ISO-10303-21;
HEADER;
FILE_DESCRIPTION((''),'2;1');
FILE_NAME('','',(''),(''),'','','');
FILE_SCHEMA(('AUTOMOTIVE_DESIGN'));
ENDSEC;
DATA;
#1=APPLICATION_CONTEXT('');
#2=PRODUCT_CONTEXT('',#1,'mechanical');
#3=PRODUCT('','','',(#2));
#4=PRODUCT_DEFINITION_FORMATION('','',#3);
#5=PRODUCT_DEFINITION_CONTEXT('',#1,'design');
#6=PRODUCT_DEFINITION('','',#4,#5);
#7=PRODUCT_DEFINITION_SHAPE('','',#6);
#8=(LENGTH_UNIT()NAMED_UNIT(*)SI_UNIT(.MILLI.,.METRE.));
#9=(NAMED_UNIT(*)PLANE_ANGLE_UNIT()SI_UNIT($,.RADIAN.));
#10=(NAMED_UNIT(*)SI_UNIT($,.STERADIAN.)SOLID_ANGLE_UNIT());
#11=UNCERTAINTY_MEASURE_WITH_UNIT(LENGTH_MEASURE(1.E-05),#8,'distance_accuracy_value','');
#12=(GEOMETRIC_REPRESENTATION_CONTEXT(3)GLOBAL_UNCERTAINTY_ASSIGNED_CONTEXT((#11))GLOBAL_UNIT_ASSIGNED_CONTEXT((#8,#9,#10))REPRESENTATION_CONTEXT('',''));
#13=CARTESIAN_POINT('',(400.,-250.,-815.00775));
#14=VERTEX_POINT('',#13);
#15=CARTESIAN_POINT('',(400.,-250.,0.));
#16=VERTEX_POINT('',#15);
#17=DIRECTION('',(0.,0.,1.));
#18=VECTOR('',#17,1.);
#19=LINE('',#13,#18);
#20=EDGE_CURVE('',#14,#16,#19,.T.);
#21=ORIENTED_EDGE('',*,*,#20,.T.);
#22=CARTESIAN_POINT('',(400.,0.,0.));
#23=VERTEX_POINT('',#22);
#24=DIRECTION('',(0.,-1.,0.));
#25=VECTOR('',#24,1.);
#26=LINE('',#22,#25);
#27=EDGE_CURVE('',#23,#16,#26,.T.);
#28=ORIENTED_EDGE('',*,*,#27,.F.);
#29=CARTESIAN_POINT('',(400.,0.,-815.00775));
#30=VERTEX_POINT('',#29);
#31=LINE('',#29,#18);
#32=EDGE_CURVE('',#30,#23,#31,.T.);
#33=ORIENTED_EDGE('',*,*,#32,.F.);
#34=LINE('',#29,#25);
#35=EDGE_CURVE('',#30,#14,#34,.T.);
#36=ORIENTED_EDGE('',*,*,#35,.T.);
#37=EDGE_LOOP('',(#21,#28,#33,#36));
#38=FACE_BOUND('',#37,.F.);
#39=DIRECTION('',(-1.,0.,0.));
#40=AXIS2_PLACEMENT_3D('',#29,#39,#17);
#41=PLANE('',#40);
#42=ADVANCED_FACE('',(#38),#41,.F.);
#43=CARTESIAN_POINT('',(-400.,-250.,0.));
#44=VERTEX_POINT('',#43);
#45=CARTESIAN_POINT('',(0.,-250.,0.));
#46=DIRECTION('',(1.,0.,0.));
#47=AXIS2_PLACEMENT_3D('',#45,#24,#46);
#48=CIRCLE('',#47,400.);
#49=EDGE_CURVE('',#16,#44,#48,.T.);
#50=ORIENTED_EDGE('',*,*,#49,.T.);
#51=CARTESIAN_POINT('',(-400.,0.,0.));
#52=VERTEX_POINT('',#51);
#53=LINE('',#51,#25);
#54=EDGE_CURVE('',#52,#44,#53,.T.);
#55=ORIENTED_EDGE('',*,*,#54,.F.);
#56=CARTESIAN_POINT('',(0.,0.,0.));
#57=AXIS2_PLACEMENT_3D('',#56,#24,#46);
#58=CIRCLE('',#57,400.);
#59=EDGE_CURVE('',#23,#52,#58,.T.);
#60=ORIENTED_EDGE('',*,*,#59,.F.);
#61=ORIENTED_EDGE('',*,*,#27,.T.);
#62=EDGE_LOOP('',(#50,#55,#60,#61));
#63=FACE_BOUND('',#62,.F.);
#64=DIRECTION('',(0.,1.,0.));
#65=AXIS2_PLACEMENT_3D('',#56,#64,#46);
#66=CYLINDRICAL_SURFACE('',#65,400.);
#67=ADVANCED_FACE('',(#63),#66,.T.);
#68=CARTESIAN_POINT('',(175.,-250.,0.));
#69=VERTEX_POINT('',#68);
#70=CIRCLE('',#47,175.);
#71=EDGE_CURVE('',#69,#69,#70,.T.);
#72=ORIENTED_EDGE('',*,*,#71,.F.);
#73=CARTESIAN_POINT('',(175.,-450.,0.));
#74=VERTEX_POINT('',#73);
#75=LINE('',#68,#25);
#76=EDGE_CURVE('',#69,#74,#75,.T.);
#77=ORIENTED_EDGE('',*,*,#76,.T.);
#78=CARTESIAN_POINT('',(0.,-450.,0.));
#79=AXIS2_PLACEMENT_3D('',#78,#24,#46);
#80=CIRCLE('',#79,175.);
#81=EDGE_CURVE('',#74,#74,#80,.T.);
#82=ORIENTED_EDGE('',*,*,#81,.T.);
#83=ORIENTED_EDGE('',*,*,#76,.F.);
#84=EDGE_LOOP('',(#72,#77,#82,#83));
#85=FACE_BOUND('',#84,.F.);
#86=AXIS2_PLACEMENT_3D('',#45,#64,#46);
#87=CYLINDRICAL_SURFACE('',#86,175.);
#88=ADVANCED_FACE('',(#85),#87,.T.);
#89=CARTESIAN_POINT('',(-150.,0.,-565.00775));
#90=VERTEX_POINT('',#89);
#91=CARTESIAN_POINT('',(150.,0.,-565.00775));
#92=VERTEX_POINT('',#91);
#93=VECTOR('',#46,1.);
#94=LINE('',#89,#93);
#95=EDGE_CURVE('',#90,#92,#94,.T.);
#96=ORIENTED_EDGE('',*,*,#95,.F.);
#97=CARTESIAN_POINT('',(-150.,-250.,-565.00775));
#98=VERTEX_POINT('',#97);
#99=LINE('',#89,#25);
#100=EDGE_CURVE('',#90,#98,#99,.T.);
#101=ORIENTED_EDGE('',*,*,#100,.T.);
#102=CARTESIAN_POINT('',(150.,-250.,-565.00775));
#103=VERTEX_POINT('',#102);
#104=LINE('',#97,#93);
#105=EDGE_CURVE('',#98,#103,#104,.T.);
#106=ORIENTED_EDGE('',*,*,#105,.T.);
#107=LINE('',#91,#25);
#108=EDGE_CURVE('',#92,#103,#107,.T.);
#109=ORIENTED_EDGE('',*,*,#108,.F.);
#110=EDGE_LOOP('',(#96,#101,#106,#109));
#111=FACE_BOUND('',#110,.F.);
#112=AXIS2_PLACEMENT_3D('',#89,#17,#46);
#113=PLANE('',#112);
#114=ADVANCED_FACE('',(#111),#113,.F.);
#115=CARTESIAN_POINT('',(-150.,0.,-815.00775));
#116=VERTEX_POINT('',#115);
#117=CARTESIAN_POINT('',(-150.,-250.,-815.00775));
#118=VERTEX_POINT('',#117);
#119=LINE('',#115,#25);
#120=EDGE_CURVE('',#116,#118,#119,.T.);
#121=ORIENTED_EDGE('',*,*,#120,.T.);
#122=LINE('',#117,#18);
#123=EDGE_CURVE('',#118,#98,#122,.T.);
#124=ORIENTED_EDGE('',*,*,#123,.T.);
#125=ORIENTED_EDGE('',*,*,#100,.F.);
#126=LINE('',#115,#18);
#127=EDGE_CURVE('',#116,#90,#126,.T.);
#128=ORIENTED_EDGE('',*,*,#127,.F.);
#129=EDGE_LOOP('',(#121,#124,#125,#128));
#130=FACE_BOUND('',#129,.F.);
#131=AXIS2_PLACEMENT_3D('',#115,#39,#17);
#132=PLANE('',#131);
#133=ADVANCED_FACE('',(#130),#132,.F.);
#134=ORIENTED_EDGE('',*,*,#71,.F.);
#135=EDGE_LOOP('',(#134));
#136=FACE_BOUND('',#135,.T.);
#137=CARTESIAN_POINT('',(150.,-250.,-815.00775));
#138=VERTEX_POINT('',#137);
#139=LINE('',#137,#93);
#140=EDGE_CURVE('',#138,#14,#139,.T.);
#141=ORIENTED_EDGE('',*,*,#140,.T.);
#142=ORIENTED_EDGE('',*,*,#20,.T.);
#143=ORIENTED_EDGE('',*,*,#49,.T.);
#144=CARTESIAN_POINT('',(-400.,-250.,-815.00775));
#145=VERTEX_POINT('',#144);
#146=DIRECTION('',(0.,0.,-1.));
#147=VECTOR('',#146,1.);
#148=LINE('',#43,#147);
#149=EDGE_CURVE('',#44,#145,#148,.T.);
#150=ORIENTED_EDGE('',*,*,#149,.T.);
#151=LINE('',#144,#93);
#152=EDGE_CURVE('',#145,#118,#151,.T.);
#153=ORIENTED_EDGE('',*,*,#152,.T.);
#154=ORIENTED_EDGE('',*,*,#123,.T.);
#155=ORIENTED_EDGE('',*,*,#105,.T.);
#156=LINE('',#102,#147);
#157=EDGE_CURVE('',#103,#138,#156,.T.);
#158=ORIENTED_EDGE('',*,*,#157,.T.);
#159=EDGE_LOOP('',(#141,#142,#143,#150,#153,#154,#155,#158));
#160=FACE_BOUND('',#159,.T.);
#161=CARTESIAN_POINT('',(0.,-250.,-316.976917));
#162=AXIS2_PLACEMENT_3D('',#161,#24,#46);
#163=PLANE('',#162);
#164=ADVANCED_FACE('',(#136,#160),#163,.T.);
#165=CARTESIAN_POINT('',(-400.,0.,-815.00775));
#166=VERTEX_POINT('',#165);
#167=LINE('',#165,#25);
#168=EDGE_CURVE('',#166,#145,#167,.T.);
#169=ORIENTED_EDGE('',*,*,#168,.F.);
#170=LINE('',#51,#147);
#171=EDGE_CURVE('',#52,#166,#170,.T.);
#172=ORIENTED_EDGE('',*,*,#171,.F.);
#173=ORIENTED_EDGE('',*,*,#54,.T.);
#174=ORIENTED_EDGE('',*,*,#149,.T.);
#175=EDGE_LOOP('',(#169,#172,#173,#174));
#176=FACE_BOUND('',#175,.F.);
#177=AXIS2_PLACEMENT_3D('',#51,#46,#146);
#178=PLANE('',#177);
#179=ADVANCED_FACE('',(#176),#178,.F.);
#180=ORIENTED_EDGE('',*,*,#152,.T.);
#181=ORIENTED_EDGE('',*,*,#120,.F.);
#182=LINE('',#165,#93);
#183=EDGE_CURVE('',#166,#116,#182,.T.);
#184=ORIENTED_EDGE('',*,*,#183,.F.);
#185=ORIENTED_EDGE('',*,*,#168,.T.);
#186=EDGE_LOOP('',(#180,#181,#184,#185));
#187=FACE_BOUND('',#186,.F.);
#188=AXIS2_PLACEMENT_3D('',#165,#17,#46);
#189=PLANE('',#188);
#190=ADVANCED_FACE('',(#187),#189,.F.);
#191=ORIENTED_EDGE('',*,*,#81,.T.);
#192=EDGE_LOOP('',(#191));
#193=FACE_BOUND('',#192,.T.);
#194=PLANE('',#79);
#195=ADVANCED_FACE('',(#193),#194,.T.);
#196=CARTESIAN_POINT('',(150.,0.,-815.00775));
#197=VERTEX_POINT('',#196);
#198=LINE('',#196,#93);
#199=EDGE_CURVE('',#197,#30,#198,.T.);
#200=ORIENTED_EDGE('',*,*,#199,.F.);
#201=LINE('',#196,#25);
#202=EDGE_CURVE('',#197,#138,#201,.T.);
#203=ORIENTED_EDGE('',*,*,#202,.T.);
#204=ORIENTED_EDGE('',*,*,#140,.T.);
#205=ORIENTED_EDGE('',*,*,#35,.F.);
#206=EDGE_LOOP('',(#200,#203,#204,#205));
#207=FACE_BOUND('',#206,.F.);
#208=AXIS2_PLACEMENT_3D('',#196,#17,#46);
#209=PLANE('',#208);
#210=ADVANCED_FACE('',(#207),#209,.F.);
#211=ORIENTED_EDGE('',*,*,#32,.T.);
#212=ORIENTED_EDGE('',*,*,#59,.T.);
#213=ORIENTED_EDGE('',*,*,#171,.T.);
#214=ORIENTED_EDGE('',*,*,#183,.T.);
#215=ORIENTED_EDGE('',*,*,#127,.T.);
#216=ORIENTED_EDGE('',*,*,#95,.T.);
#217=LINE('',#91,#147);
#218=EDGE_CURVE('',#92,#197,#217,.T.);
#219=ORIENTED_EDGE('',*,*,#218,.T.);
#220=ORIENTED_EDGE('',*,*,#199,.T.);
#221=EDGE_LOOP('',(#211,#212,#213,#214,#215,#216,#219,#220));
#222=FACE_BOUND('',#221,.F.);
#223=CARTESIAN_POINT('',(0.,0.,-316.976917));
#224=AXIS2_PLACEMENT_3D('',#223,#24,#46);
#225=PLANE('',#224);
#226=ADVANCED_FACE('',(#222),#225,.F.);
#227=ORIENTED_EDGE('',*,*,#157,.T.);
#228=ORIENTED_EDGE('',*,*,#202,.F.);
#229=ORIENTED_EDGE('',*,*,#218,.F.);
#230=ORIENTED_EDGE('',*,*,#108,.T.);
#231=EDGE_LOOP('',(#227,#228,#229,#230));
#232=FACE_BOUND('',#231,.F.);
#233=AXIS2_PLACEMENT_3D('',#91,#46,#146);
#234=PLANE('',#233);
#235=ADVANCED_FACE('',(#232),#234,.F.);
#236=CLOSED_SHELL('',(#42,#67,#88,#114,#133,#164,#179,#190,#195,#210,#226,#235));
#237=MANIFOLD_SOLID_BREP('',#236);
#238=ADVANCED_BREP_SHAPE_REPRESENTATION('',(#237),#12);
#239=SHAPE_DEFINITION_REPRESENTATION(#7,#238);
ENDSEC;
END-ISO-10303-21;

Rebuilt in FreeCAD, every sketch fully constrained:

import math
import FreeCAD as App
import Part
import Sketcher

doc = App.newDocument("Part")
body = doc.addObject("PartDesign::Body", "Body")

# Sketch on XZ plane
sketch1 = doc.addObject("Sketcher::SketchObject", "Sketch")
body.addObject(sketch1)
sketch1.AttachmentSupport = (doc.XZ_Plane, [""])
sketch1.MapMode = "FlatFace"
sketch1.addGeometry(Part.LineSegment(App.Vector(400, -815.00775, 0), App.Vector(400, 0, 0)), False)
sketch1.addGeometry(Part.ArcOfCircle(Part.Circle(App.Vector(0, 0, 0), App.Vector(0, 0, 1), 400), math.radians(0), math.radians(180)), False)
sketch1.addGeometry(Part.LineSegment(App.Vector(-400, 0, 0), App.Vector(-400, -815.00775, 0)), False)
sketch1.addGeometry(Part.LineSegment(App.Vector(-400, -815.00775, 0), App.Vector(-150, -815.00775, 0)), False)
sketch1.addGeometry(Part.LineSegment(App.Vector(-150, -815.00775, 0), App.Vector(-150, -565.00775, 0)), False)
sketch1.addGeometry(Part.LineSegment(App.Vector(-150, -565.00775, 0), App.Vector(150, -565.00775, 0)), False)
sketch1.addGeometry(Part.LineSegment(App.Vector(150, -565.00775, 0), App.Vector(150, -815.00775, 0)), False)
sketch1.addGeometry(Part.LineSegment(App.Vector(150, -815.00775, 0), App.Vector(400, -815.00775, 0)), False)
sketch1.addConstraint(Sketcher.Constraint("Tangent", 0, 2, 1, 1))
sketch1.addConstraint(Sketcher.Constraint("Tangent", 1, 2, 2, 1))
sketch1.addConstraint(Sketcher.Constraint("Coincident", 2, 2, 3, 1))
sketch1.addConstraint(Sketcher.Constraint("Coincident", 3, 2, 4, 1))
sketch1.addConstraint(Sketcher.Constraint("Coincident", 4, 2, 5, 1))
sketch1.addConstraint(Sketcher.Constraint("Coincident", 5, 2, 6, 1))
sketch1.addConstraint(Sketcher.Constraint("Coincident", 6, 2, 7, 1))
sketch1.addConstraint(Sketcher.Constraint("Coincident", 7, 2, 0, 1))
sketch1.addConstraint(Sketcher.Constraint("Vertical", 0))
sketch1.addConstraint(Sketcher.Constraint("Vertical", 2))
sketch1.addConstraint(Sketcher.Constraint("Horizontal", 3))
sketch1.addConstraint(Sketcher.Constraint("Vertical", 4))
sketch1.addConstraint(Sketcher.Constraint("Horizontal", 5))
sketch1.addConstraint(Sketcher.Constraint("Vertical", 6))
sketch1.addConstraint(Sketcher.Constraint("Horizontal", 7))
sketch1.addConstraint(Sketcher.Constraint("Coincident", 1, 3, -1, 1))
sketch1.addConstraint(Sketcher.Constraint("Symmetric", 3, 2, 6, 2, -2))
sketch1.addConstraint(Sketcher.Constraint("Equal", 7, 4))
sketch1.addConstraint(Sketcher.Constraint("Radius", 1, 400.0))
sketch1.addConstraint(Sketcher.Constraint("DistanceX", 3, 1, 3, 2, 250.0))
sketch1.addConstraint(Sketcher.Constraint("DistanceY", 0, 1, 0, 2, 815.00775))
pad1 = doc.addObject("PartDesign::Pad", "Pad")
body.addObject(pad1)
pad1.Profile = sketch1
pad1.Length = 250

# Sketch on XZ plane
sketch2 = doc.addObject("Sketcher::SketchObject", "Sketch001")
body.addObject(sketch2)
sketch2.AttachmentSupport = (doc.XZ_Plane, [""])
sketch2.MapMode = "FlatFace"
sketch2.addGeometry(Part.Circle(App.Vector(0, 0, 0), App.Vector(0, 0, 1), 175), False)
sketch2.addConstraint(Sketcher.Constraint("Coincident", 0, 3, -1, 1))
sketch2.addConstraint(Sketcher.Constraint("Diameter", 0, 350.0))
pad2 = doc.addObject("PartDesign::Pad", "Pad001")
body.addObject(pad2)
pad2.Profile = sketch2
pad2.Length = 200

# Sketch on XZ plane
sketch3 = doc.addObject("Sketcher::SketchObject", "Sketch002")
body.addObject(sketch3)
sketch3.AttachmentSupport = (doc.XZ_Plane, [""])
sketch3.MapMode = "FlatFace"
sketch3.AttachmentOffset = App.Placement(App.Vector(0, 0, 250), App.Rotation())
sketch3.addGeometry(Part.Circle(App.Vector(0, 0, 0), App.Vector(0, 0, 1), 175), False)
sketch3.addConstraint(Sketcher.Constraint("Coincident", 0, 3, -1, 1))
sketch3.addConstraint(Sketcher.Constraint("Diameter", 0, 350.0))
pad3 = doc.addObject("PartDesign::Pad", "Pad002")
body.addObject(pad3)
pad3.Profile = sketch3
pad3.Length = 200

doc.recompute()
